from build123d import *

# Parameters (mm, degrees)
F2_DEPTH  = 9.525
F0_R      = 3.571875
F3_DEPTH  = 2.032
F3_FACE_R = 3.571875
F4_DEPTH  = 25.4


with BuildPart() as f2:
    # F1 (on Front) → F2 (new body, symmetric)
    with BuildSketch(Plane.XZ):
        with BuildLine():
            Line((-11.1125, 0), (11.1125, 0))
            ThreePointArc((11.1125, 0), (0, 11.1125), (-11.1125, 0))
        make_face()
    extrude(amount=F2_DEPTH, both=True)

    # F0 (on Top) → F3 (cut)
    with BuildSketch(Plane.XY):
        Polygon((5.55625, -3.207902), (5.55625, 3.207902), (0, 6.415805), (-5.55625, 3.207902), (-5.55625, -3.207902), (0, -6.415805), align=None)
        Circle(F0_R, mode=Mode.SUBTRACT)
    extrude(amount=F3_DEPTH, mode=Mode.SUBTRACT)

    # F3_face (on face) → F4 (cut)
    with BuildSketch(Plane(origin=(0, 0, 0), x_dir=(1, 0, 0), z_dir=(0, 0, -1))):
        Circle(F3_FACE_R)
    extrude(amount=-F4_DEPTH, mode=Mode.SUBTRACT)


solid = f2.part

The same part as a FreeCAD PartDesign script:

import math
import FreeCAD as App
import Part
import Sketcher
from FreeCAD import Vector
Q = App.Units.Quantity


def add_polygon(sketch, points):
    """Adds a closed chain of lines whose ends are joined by coincident constraints."""
    first, n = sketch.GeometryCount, len(points)
    for a, b in zip(points, points[1:] + points[:1]):
        sketch.addGeometry(Part.LineSegment(App.Vector(*a, 0), App.Vector(*b, 0)), False)
    for i in range(n):
        sketch.addConstraint(Sketcher.Constraint("Coincident", first + i, 2, first + (i + 1) % n, 1))

doc = App.newDocument("Part")
body = doc.addObject("PartDesign::Body", "Body")

sketch1 = body.newObject("Sketcher::SketchObject", "Sketch")
sketch1.AttachmentSupport = (doc.getObject("XZ_Plane"), [""])
sketch1.MapMode = "FlatFace"
sketch1.addGeometry(Part.LineSegment(Vector(-11.1125, 0, 0), Vector(11.1125, 0, 0)), False)
sketch1.addGeometry(Part.ArcOfCircle(Part.Circle(Vector(0, 0, 0), Vector(0, 0, 1), 11.1125), math.radians(0), math.radians(180)), False)
sketch1.addConstraint(Sketcher.Constraint("Coincident", 0, 1, 1, 2))
sketch1.addConstraint(Sketcher.Constraint("Coincident", 1, 1, 0, 2))
sketch1.addConstraint(Sketcher.Constraint("Horizontal", 0))
sketch1.addConstraint(Sketcher.Constraint("Coincident", 1, 3, -1, 1))
sketch1.addConstraint(Sketcher.Constraint("PointOnObject", 0, 1, -1))
sketch1.addConstraint(Sketcher.Constraint("Radius", 1, Q("0.4375 in")))
pad1 = body.newObject("PartDesign::Pad", "Pad")
pad1.Profile = sketch1
pad1.Length = Q("0.75 in")
pad1.Midplane = True

sketch2 = body.newObject("Sketcher::SketchObject", "Sketch001")
sketch2.AttachmentSupport = (doc.getObject("XY_Plane"), [""])
sketch2.MapMode = "FlatFace"
add_polygon(sketch2, [(5.55625, -3.207902), (5.55625, 3.207902), (0, 6.415805), (-5.55625, 3.207902), (-5.55625, -3.207902), (0, -6.415805)])
sketch2.addGeometry(Part.Circle(Vector(0, 0, 0), Vector(0, 0, 1), 3.571875), False)
sketch2.addConstraint(Sketcher.Constraint("Vertical", 0))
sketch2.addConstraint(Sketcher.Constraint("Vertical", 3))
sketch2.addConstraint(Sketcher.Constraint("Coincident", 6, 3, -1, 1))
sketch2.addConstraint(Sketcher.Constraint("Symmetric", 0, 2, 3, 2, -1, 1))
sketch2.addConstraint(Sketcher.Constraint("Symmetric", 1, 2, 4, 2, -1, 1))
sketch2.addConstraint(Sketcher.Constraint("PointOnObject", 1, 2, -2))
sketch2.addConstraint(Sketcher.Constraint("Parallel", 2, 5))
sketch2.addConstraint(Sketcher.Constraint("Horizontal", 0, 2, 2, 2))
sketch2.addConstraint(Sketcher.Constraint("Diameter", 6, Q("0.28125 in")))
sketch2.addConstraint(Sketcher.Constraint("Angle", 1, Q("149.999996 deg")))
sketch2.addConstraint(Sketcher.Constraint("DistanceX", -1, 1, 0, 2, Q("0.21875 in")))
sketch2.addConstraint(Sketcher.Constraint("DistanceY", -1, 1, 0, 2, 3.207902))
pocket1 = body.newObject("PartDesign::Pocket", "Pocket")
pocket1.Profile = sketch2
pocket1.Length = Q("0.08 in")
pocket1.Reversed = True

sketch3 = body.newObject("Sketcher::SketchObject", "Sketch002")
sketch3.AttachmentSupport = (doc.getObject("XY_Plane"), [""])
sketch3.MapMode = "FlatFace"
sketch3.addGeometry(Part.Circle(Vector(0, 0, 0), Vector(0, 0, 1), 3.571875), False)
sketch3.addConstraint(Sketcher.Constraint("Coincident", 0, 3, -1, 1))
sketch3.addConstraint(Sketcher.Constraint("Diameter", 0, Q("0.28125 in")))
pocket2 = body.newObject("PartDesign::Pocket", "Pocket001")
pocket2.Profile = sketch3
pocket2.Length = Q("1 in")
pocket2.Reversed = True

doc.recompute()
